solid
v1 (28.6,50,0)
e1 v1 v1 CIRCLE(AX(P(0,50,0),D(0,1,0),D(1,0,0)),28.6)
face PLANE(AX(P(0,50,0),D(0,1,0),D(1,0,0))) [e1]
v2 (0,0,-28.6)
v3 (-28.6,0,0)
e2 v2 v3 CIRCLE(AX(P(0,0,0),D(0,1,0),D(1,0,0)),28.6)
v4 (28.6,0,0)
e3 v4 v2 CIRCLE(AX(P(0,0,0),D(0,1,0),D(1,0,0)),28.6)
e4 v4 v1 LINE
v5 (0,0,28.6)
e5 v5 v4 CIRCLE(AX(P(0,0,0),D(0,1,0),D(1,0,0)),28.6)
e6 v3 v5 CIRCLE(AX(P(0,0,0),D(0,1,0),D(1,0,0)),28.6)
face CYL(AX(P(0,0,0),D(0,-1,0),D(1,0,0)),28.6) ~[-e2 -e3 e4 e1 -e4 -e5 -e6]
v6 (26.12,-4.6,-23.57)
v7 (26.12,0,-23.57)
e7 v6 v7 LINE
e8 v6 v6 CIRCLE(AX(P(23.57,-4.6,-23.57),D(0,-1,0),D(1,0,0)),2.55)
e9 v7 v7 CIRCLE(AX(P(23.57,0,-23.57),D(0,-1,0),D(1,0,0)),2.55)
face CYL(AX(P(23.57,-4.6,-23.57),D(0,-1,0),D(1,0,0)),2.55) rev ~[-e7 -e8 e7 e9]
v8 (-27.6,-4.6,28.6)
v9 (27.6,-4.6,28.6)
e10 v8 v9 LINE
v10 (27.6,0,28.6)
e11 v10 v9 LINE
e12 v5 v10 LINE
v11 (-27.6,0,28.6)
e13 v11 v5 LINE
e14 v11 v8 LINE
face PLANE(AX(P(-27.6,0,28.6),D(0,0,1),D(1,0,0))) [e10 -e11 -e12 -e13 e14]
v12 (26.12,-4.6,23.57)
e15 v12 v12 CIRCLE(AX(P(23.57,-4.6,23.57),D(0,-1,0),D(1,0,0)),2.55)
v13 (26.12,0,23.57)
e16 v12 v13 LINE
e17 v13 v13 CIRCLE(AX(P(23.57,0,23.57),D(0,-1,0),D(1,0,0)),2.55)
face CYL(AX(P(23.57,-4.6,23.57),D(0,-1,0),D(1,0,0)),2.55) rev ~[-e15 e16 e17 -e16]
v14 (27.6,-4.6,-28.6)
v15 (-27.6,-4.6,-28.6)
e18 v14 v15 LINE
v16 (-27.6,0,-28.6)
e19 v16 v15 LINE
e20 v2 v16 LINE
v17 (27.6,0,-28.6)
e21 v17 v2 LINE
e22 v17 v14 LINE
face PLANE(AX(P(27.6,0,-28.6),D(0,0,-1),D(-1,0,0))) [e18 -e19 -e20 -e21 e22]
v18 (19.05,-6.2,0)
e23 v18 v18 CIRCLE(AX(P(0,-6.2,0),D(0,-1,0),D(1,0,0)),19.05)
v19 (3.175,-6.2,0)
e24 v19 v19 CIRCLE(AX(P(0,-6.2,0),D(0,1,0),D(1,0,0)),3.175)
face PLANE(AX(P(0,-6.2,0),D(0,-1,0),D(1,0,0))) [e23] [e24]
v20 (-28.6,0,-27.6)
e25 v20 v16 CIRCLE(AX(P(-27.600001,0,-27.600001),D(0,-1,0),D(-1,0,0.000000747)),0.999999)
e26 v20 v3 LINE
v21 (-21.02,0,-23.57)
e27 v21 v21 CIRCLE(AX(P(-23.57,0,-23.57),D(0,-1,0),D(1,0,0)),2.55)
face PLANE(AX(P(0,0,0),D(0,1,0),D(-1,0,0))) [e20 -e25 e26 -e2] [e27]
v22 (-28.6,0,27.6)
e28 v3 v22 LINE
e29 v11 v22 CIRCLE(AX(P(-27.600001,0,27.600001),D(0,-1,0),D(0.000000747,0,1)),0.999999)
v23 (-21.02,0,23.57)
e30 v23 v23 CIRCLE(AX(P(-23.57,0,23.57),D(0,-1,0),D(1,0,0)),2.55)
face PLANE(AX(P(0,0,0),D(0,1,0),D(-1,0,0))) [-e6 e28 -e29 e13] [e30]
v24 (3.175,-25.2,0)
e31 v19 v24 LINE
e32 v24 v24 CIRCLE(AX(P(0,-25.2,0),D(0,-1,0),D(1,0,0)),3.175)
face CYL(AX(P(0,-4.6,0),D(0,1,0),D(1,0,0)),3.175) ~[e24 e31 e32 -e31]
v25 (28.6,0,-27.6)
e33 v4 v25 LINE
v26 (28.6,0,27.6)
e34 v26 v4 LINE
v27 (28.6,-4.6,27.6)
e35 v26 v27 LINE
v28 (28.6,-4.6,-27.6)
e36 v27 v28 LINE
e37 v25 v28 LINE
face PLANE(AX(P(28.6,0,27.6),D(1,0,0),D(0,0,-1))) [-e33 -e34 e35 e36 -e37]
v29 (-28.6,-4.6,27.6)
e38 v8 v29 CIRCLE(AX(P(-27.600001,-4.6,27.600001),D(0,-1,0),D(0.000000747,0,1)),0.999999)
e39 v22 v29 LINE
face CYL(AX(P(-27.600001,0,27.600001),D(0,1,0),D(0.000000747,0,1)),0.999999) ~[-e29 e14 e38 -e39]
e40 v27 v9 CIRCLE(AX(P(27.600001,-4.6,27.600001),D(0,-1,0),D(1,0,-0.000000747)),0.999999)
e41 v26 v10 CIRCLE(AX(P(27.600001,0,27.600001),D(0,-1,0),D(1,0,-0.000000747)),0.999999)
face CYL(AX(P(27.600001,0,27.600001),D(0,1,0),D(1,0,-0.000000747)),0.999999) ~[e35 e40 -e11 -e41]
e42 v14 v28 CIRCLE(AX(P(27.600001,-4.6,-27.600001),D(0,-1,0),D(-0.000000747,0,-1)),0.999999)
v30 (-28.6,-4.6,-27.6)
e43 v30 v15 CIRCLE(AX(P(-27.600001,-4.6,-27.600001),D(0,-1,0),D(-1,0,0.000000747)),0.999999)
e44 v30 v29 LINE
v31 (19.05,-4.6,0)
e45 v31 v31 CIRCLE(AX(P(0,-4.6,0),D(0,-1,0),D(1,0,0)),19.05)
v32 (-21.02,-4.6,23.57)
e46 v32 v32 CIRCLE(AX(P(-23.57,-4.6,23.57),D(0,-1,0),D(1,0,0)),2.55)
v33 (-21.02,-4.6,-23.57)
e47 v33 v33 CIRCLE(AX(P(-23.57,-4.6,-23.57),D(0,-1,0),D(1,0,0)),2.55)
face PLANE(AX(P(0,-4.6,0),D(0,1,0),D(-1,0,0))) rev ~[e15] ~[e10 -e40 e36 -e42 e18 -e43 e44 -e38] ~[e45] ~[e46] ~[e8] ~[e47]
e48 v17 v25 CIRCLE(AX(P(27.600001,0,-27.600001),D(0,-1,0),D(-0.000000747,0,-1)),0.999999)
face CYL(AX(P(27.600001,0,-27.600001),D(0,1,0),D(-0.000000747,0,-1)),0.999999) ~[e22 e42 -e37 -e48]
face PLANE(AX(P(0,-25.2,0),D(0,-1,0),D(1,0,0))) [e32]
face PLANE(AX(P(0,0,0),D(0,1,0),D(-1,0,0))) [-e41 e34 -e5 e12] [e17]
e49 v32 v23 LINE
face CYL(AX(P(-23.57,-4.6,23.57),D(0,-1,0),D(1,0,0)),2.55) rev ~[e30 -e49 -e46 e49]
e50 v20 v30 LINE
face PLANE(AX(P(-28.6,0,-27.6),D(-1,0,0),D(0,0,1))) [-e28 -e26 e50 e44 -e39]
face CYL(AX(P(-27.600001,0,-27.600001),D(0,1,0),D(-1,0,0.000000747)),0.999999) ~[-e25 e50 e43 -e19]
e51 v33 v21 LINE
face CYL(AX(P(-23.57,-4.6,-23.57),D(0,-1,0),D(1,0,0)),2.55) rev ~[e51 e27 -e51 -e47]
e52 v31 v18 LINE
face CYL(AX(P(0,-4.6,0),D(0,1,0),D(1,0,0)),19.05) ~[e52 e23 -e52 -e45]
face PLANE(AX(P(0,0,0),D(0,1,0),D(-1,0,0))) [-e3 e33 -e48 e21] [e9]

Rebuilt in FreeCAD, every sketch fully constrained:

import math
import FreeCAD as App
import Part
import Sketcher

V = App.Vector

doc = App.newDocument("Part")
body = doc.addObject("PartDesign::Body", "Body")

# Sketch on XZ plane
sketch1 = doc.addObject("Sketcher::SketchObject", "Sketch")
body.addObject(sketch1)
sketch1.AttachmentSupport = (doc.XZ_Plane, [""])
sketch1.MapMode = "FlatFace"
sketch1.addGeometry(Part.LineSegment(V(27.6, 28.6, 0), V(-27.6, 28.6, 0)), False)
sketch1.addGeometry(Part.ArcOfCircle(Part.Circle(V(-27.6, 27.6, 0), V(0, 0, 1), 1), math.radians(90), math.radians(180)), False)
sketch1.addGeometry(Part.LineSegment(V(-28.6, 27.6, 0), V(-28.6, -27.6, 0)), False)
sketch1.addGeometry(Part.ArcOfCircle(Part.Circle(V(-27.6, -27.6, 0), V(0, 0, 1), 1), math.radians(180), math.radians(270)), False)
sketch1.addGeometry(Part.LineSegment(V(-27.6, -28.6, 0), V(27.6, -28.6, 0)), False)
sketch1.addGeometry(Part.ArcOfCircle(Part.Circle(V(27.6, -27.6, 0), V(0, 0, 1), 1), math.radians(-90), math.radians(0)), False)
sketch1.addGeometry(Part.LineSegment(V(28.6, -27.6, 0), V(28.6, 27.6, 0)), False)
sketch1.addGeometry(Part.ArcOfCircle(Part.Circle(V(27.6, 27.6, 0), V(0, 0, 1), 1), math.radians(0), math.radians(90)), False)
sketch1.addConstraint(Sketcher.Constraint("Tangent", 0, 2, 1, 1))
sketch1.addConstraint(Sketcher.Constraint("Tangent", 1, 2, 2, 1))
sketch1.addConstraint(Sketcher.Constraint("Tangent", 2, 2, 3, 1))
sketch1.addConstraint(Sketcher.Constraint("Tangent", 3, 2, 4, 1))
sketch1.addConstraint(Sketcher.Constraint("Tangent", 4, 2, 5, 1))
sketch1.addConstraint(Sketcher.Constraint("Tangent", 5, 2, 6, 1))
sketch1.addConstraint(Sketcher.Constraint("Tangent", 6, 2, 7, 1))
sketch1.addConstraint(Sketcher.Constraint("Tangent", 7, 2, 0, 1))
sketch1.addConstraint(Sketcher.Constraint("Horizontal", 0))
sketch1.addConstraint(Sketcher.Constraint("Vertical", 2))
sketch1.addConstraint(Sketcher.Constraint("Horizontal", 4))
sketch1.addConstraint(Sketcher.Constraint("Vertical", 6))
sketch1.addConstraint(Sketcher.Constraint("Equal", 1, 3))
sketch1.addConstraint(Sketcher.Constraint("Equal", 3, 5))
sketch1.addConstraint(Sketcher.Constraint("Equal", 5, 7))
sketch1.addConstraint(Sketcher.Constraint("Symmetric", 1, 3, 5, 3, -1, 1))
sketch1.addConstraint(Sketcher.Constraint("Equal", 4, 2))
sketch1.addConstraint(Sketcher.Constraint("Radius", 1, 0.999999))
sketch1.addConstraint(Sketcher.Constraint("DistanceX", 0, 2, 0, 1, 55.2))
pad1 = doc.addObject("PartDesign::Pad", "Pad")
body.addObject(pad1)
pad1.Profile = sketch1
pad1.Length = 4.6

# Sketch on XZ plane
sketch2 = doc.addObject("Sketcher::SketchObject", "Sketch001")
body.addObject(sketch2)
sketch2.AttachmentSupport = (doc.XZ_Plane, [""])
sketch2.MapMode = "FlatFace"
sketch2.AttachmentOffset = App.Placement(V(0, 0, 4.6), App.Rotation())
sketch2.addGeometry(Part.Circle(V(-23.6, 23.6, 0), V(0, 0, 1), 2.5), False)
sketch2.addGeometry(Part.Circle(V(23.6, 23.6, 0), V(0, 0, 1), 2.5), False)
sketch2.addGeometry(Part.Circle(V(-23.6, -23.6, 0), V(0, 0, 1), 2.5), False)
sketch2.addGeometry(Part.Circle(V(23.6, -23.6, 0), V(0, 0, 1), 2.5), False)
sketch2.addConstraint(Sketcher.Constraint("Equal", 0, 1))
sketch2.addConstraint(Sketcher.Constraint("Equal", 1, 2))
sketch2.addConstraint(Sketcher.Constraint("Equal", 2, 3))
sketch2.addConstraint(Sketcher.Constraint("Symmetric", 1, 3, 2, 3, -1, 1))
sketch2.addConstraint(Sketcher.Constraint("Symmetric", 0, 3, 3, 3, -1, 1))
sketch2.addConstraint(Sketcher.Constraint("Symmetric", 0, 3, 1, 3, -2))
sketch2.addConstraint(Sketcher.Constraint("Diameter", 0, 5.1))
sketch2.addConstraint(Sketcher.Constraint("DistanceX", 0, 3, -1, 1, 23.57))
sketch2.addConstraint(Sketcher.Constraint("DistanceY", -1, 1, 0, 3, 23.57))
pocket1 = doc.addObject("PartDesign::Pocket", "Pocket")
body.addObject(pocket1)
pocket1.Profile = sketch2
pocket1.Type = "ThroughAll"

# Sketch on XZ plane
sketch3 = doc.addObject("Sketcher::SketchObject", "Sketch002")
body.addObject(sketch3)
sketch3.AttachmentSupport = (doc.XZ_Plane, [""])
sketch3.MapMode = "FlatFace"
sketch3.AttachmentOffset = App.Placement(V(0, 0, 4.6), App.Rotation())
sketch3.addGeometry(Part.Circle(V(0, 0, 0), V(0, 0, 1), 19), False)
sketch3.addConstraint(Sketcher.Constraint("Coincident", 0, 3, -1, 1))
sketch3.addConstraint(Sketcher.Constraint("Diameter", 0, 38.1))
pad2 = doc.addObject("PartDesign::Pad", "Pad001")
body.addObject(pad2)
pad2.Profile = sketch3
pad2.Length = 1.6

# Sketch on XZ plane
sketch4 = doc.addObject("Sketcher::SketchObject", "Sketch003")
body.addObject(sketch4)
sketch4.AttachmentSupport = (doc.XZ_Plane, [""])
sketch4.MapMode = "FlatFace"
sketch4.AttachmentOffset = App.Placement(V(0, 0, 4.6), App.Rotation())
sketch4.addGeometry(Part.Circle(V(0, 0, 0), V(0, 0, 1), 3.2), False)
sketch4.addConstraint(Sketcher.Constraint("Coincident", 0, 3, -1, 1))
sketch4.addConstraint(Sketcher.Constraint("Diameter", 0, 6.35))
pad3 = doc.addObject("PartDesign::Pad", "Pad002")
body.addObject(pad3)
pad3.Profile = sketch4
pad3.Length = 20.6

# Sketch on XZ plane
sketch5 = doc.addObject("Sketcher::SketchObject", "Sketch004")
body.addObject(sketch5)
sketch5.AttachmentSupport = (doc.XZ_Plane, [""])
sketch5.MapMode = "FlatFace"
sketch5.addGeometry(Part.Circle(V(0, 0, 0), V(0, 0, 1), 29), False)
sketch5.addConstraint(Sketcher.Constraint("Coincident", 0, 3, -1, 1))
sketch5.addConstraint(Sketcher.Constraint("Diameter", 0, 57.2))
pad4 = doc.addObject("PartDesign::Pad", "Pad003")
body.addObject(pad4)
pad4.Profile = sketch5
pad4.Length = 50
pad4.Reversed = True

doc.recompute()
